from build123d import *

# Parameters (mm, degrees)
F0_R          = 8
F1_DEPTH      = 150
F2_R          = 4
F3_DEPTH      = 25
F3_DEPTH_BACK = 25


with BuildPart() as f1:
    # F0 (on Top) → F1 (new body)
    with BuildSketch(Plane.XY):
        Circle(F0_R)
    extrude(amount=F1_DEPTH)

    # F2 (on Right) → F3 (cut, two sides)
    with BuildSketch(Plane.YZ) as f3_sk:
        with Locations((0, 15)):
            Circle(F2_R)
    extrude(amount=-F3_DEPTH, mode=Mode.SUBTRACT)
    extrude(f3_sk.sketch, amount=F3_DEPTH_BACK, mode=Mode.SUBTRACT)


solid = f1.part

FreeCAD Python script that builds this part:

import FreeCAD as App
import Part
import Sketcher
Q = App.Units.Quantity

doc = App.newDocument("Part")
body = doc.addObject("PartDesign::Body", "Body")

# Sketch on XY plane
sketch1 = doc.addObject("Sketcher::SketchObject", "Sketch")
body.addObject(sketch1)
sketch1.AttachmentSupport = (doc.XY_Plane, [""])
sketch1.MapMode = "FlatFace"
sketch1.addGeometry(Part.Circle(App.Vector(0, 0, 0), App.Vector(0, 0, 1), 8), False)
sketch1.addConstraint(Sketcher.Constraint("Coincident", 0, 3, -1, 1))
sketch1.addConstraint(Sketcher.Constraint("Diameter", 0, Q("16 mm")))
pad1 = doc.addObject("PartDesign::Pad", "Pad")
body.addObject(pad1)
pad1.Profile = sketch1
pad1.Length = 150

# Sketch on YZ plane
sketch2 = doc.addObject("Sketcher::SketchObject", "Sketch001")
body.addObject(sketch2)
sketch2.AttachmentSupport = (doc.YZ_Plane, [""])
sketch2.MapMode = "FlatFace"
sketch2.addGeometry(Part.Circle(App.Vector(0, 15, 0), App.Vector(0, 0, 1), 4), False)
sketch2.addConstraint(Sketcher.Constraint("PointOnObject", 0, 3, -2))
sketch2.addConstraint(Sketcher.Constraint("Diameter", 0, Q("8 mm")))
sketch2.addConstraint(Sketcher.Constraint("DistanceY", -1, 1, 0, 3, Q("15 mm")))
pocket1 = doc.addObject("PartDesign::Pocket", "Pocket")
body.addObject(pocket1)
pocket1.Profile = sketch2
pocket1.Type = "ThroughAll"
pocket1.Midplane = True

doc.recompute()
